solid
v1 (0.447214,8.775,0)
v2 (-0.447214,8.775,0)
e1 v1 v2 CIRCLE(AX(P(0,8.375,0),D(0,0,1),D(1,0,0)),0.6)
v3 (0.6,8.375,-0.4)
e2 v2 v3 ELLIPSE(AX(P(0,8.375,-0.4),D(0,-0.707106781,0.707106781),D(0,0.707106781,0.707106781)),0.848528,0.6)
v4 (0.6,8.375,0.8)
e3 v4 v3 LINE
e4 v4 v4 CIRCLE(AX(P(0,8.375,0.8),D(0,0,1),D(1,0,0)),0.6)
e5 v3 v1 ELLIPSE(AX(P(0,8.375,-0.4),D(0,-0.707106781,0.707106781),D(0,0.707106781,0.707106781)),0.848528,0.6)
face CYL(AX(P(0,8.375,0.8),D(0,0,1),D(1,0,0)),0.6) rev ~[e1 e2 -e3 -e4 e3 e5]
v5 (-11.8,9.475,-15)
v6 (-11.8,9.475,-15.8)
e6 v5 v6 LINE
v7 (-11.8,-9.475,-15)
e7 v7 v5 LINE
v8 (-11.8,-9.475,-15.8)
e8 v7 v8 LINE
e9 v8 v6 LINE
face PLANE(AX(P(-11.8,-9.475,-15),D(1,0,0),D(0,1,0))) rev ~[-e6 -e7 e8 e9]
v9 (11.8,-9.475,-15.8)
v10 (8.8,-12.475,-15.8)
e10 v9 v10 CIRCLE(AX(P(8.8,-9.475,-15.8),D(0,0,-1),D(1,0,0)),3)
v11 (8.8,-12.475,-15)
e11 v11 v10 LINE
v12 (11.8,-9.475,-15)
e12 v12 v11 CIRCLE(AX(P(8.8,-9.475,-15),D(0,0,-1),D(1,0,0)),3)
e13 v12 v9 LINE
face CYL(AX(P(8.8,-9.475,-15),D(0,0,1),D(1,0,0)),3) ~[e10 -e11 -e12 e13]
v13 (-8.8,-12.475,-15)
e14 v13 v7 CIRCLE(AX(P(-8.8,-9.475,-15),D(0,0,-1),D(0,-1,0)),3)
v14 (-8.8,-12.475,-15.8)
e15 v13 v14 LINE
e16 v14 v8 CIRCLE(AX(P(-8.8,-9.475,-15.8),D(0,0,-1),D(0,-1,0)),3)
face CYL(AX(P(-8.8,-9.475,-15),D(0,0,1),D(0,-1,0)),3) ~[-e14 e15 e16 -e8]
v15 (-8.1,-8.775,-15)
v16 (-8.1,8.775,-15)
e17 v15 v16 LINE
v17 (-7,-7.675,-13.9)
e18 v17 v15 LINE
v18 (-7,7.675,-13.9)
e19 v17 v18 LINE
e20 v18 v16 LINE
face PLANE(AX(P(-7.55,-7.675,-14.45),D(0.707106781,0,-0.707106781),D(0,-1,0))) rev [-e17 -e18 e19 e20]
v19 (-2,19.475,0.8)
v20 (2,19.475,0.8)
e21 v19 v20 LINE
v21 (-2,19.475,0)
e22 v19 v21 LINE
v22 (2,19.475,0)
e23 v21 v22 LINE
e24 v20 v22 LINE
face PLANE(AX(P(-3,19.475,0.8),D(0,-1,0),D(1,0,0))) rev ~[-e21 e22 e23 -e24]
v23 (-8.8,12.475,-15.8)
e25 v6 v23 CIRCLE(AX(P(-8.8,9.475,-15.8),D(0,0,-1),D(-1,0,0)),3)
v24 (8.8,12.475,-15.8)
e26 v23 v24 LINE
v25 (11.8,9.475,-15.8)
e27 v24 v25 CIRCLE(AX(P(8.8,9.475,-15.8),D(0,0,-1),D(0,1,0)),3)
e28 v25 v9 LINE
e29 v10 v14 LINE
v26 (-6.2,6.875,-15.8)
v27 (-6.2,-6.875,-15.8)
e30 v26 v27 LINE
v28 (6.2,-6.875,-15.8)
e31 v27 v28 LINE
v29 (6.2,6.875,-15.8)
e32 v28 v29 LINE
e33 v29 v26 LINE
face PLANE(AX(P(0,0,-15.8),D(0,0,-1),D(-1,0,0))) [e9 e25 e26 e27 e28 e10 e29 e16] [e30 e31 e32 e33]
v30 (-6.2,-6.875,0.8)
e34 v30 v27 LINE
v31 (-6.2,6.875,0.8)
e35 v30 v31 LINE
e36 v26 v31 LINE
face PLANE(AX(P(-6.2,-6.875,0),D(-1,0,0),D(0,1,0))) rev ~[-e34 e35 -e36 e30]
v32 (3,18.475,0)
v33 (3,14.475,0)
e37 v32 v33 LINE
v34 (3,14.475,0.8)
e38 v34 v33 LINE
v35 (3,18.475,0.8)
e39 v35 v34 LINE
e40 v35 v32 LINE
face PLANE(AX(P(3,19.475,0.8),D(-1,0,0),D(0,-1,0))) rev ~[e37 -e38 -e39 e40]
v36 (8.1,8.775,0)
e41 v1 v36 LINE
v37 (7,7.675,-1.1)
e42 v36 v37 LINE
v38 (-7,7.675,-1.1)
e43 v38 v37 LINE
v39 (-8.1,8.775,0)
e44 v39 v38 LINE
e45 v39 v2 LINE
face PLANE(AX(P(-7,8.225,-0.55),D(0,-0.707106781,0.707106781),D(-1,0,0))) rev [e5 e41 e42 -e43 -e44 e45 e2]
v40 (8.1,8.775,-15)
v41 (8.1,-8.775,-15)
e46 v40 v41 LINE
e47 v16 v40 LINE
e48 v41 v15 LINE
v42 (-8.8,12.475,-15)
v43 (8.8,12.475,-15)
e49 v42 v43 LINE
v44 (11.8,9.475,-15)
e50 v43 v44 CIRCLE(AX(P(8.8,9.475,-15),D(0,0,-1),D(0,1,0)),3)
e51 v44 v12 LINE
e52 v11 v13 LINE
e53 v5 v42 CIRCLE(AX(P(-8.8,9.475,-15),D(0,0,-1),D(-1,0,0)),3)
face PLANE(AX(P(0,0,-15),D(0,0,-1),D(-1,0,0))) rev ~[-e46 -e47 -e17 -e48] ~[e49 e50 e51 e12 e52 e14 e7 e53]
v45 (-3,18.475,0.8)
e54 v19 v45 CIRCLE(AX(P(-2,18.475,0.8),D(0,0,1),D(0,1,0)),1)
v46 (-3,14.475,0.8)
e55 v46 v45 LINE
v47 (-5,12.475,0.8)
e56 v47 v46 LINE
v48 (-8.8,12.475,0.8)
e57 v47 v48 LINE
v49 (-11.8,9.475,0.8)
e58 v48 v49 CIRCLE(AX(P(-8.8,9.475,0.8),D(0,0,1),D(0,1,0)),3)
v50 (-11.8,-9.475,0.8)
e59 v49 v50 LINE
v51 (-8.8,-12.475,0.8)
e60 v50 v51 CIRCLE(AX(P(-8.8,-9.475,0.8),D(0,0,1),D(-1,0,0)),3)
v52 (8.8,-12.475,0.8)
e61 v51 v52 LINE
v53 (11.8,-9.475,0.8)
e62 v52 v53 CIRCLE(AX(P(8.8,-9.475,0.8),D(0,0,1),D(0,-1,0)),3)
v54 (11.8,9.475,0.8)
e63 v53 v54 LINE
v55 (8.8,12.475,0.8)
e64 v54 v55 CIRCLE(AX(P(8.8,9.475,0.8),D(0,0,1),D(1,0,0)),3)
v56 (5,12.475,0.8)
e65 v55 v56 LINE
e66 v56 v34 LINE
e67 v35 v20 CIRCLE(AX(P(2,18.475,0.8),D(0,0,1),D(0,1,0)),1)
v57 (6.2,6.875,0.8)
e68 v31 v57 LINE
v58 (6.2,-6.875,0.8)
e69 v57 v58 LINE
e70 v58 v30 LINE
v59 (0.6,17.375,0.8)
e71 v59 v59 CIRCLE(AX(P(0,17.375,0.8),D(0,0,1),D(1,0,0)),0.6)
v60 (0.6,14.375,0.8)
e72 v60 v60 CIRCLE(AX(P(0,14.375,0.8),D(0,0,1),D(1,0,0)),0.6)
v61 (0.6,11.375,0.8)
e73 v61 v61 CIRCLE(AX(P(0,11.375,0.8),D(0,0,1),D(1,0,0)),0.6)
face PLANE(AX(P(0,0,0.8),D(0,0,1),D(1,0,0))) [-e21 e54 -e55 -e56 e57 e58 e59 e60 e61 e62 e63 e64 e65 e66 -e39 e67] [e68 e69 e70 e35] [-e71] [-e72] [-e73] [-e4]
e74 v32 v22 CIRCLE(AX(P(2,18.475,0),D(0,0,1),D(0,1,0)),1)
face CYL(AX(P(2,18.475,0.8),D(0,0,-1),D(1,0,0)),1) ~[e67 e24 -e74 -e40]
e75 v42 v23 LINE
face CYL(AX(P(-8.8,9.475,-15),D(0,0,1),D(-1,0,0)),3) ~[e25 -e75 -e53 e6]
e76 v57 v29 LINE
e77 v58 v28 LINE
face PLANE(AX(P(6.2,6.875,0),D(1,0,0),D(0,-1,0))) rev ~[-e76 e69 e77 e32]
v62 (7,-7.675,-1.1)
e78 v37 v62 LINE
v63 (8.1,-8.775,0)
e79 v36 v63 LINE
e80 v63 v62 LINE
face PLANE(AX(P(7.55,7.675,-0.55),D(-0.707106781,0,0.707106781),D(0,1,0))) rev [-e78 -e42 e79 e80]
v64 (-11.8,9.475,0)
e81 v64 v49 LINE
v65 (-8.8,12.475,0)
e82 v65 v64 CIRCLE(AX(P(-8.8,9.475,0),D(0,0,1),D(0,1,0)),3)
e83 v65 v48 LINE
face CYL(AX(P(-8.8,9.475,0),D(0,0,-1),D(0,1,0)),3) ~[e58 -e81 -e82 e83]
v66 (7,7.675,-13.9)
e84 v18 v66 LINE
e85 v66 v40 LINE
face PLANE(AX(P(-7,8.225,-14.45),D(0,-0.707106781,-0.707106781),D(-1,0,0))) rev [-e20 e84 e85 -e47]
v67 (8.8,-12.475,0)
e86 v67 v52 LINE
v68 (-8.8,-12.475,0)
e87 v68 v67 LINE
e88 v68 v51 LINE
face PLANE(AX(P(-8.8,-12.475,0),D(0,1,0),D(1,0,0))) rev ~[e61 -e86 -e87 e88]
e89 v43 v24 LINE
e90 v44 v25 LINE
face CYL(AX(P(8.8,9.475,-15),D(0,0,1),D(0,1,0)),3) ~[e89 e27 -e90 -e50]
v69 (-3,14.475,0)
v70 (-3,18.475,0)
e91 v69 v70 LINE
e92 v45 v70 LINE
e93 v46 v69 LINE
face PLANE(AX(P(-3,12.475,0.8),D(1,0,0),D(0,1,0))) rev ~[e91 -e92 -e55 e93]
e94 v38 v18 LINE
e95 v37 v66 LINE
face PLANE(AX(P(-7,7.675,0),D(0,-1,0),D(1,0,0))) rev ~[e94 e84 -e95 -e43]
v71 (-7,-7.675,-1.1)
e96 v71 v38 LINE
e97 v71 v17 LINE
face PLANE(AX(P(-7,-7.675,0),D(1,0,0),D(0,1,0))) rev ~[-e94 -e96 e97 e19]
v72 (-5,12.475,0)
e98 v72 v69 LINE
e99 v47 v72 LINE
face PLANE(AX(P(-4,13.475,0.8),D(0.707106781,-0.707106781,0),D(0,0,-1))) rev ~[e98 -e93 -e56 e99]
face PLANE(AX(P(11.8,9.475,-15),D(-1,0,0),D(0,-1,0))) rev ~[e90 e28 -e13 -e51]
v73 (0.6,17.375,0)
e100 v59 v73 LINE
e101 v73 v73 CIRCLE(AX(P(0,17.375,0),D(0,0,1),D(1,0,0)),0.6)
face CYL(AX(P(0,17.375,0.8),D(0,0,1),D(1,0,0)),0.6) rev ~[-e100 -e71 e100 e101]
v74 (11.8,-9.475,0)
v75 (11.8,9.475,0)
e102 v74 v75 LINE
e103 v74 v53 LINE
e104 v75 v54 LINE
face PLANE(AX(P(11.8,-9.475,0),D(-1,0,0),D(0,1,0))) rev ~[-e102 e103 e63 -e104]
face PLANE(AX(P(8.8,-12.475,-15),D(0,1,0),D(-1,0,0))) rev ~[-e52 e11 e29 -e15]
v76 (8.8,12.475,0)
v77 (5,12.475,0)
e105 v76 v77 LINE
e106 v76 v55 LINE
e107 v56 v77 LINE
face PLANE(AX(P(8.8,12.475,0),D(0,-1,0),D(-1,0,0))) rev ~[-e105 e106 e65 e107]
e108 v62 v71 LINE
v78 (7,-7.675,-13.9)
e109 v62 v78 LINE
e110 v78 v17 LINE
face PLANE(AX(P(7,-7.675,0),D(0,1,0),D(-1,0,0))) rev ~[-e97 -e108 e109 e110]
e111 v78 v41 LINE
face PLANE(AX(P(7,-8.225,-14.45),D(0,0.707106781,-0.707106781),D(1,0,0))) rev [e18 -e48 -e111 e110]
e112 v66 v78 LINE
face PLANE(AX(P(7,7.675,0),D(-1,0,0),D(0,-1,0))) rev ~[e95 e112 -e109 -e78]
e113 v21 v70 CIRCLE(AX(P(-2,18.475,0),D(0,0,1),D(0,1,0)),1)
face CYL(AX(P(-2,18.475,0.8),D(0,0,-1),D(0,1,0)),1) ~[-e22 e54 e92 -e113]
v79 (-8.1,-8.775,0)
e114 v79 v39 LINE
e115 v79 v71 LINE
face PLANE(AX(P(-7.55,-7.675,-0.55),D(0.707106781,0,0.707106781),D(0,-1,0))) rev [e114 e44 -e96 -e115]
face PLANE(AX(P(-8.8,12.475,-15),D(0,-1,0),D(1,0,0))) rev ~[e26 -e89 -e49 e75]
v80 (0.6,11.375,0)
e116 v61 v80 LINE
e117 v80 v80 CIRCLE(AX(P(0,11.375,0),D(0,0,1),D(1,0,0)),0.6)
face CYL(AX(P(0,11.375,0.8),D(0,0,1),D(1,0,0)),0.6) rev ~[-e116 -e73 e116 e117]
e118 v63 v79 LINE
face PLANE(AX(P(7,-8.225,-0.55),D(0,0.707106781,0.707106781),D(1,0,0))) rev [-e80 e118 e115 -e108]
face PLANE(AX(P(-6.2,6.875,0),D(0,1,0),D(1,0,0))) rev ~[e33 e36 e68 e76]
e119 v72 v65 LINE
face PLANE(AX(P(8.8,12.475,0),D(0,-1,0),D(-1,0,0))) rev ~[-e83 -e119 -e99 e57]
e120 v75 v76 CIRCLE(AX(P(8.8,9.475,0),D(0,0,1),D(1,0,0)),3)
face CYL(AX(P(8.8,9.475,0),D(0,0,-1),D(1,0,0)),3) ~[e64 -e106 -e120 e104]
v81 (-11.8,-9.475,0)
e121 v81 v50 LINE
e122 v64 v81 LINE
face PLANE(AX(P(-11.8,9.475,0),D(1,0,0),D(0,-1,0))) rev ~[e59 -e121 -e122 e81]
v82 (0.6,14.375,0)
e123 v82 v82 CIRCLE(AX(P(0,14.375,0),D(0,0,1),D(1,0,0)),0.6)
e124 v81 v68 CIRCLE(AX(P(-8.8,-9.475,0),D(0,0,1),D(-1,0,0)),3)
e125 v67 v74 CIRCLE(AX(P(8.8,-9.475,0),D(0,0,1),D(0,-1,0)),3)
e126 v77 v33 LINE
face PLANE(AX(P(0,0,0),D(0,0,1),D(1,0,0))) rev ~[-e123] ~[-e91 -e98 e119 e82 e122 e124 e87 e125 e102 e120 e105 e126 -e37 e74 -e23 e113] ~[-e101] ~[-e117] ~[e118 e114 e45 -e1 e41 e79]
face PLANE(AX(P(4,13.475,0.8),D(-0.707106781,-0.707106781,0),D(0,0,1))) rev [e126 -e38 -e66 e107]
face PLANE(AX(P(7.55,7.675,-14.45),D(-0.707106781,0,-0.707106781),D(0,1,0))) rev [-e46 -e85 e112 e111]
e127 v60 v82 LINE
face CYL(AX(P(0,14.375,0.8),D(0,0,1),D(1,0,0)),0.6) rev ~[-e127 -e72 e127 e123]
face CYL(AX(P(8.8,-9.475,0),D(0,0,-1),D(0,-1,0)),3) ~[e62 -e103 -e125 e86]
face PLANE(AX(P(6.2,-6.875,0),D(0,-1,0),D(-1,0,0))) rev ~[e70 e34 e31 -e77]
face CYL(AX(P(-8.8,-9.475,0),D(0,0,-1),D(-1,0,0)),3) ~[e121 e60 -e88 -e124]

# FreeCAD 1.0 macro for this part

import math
import FreeCAD as App
import Part
import Sketcher
from FreeCAD import Vector
Q = App.Units.Quantity


def edges_at(feature, points):
    """Names of the edges that pass closest to the given points."""
    edges = feature.Shape.Edges
    near = lambda p: min(range(len(edges)), key=lambda i: edges[i].distToShape(Part.Vertex(*p))[0])
    return sorted({f"Edge{near(p) + 1}" for p in points})


def add_polygon(sketch, points):
    """Adds a closed chain of lines whose ends are joined by coincident constraints."""
    first, n = sketch.GeometryCount, len(points)
    for a, b in zip(points, points[1:] + points[:1]):
        sketch.addGeometry(Part.LineSegment(App.Vector(*a, 0), App.Vector(*b, 0)), False)
    for i in range(n):
        sketch.addConstraint(Sketcher.Constraint("Coincident", first + i, 2, first + (i + 1) % n, 1))

doc = App.newDocument("Part")
body = doc.addObject("PartDesign::Body", "Body")

sketch1 = body.newObject("Sketcher::SketchObject", "Sketch")
sketch1.AttachmentSupport = (doc.getObject("XY_Plane"), [""])
sketch1.MapMode = "FlatFace"
sketch1.addGeometry(Part.ArcOfCircle(Part.Circle(Vector(8.8, 9.5, 0), Vector(0, 0, 1), 3), math.radians(0), math.radians(90)), False)
sketch1.addGeometry(Part.LineSegment(Vector(8.8, 12.5, 0), Vector(-8.8, 12.5, 0)), False)
sketch1.addGeometry(Part.ArcOfCircle(Part.Circle(Vector(-8.8, 9.5, 0), Vector(0, 0, 1), 3), math.radians(90), math.radians(180)), False)
sketch1.addGeometry(Part.LineSegment(Vector(-11.8, 9.5, 0), Vector(-11.8, -9.5, 0)), False)
sketch1.addGeometry(Part.ArcOfCircle(Part.Circle(Vector(-8.8, -9.5, 0), Vector(0, 0, 1), 3), math.radians(180), math.radians(270)), False)
sketch1.addGeometry(Part.LineSegment(Vector(-8.8, -12.5, 0), Vector(8.8, -12.5, 0)), False)
sketch1.addGeometry(Part.ArcOfCircle(Part.Circle(Vector(8.8, -9.5, 0), Vector(0, 0, 1), 3), math.radians(-90), math.radians(0)), False)
sketch1.addGeometry(Part.LineSegment(Vector(11.8, -9.5, 0), Vector(11.8, 9.5, 0)), False)
add_polygon(sketch1, [(-6.2, -6.9), (-6.2, 6.9), (6.2, 6.9), (6.2, -6.9)])
sketch1.addConstraint([
    Sketcher.Constraint("Tangent", 0, 2, 1, 1),
    Sketcher.Constraint("Tangent", 1, 2, 2, 1),
    Sketcher.Constraint("Tangent", 2, 2, 3, 1),
    Sketcher.Constraint("Tangent", 3, 2, 4, 1),
    Sketcher.Constraint("Tangent", 4, 2, 5, 1),
    Sketcher.Constraint("Tangent", 5, 2, 6, 1),
    Sketcher.Constraint("Tangent", 6, 2, 7, 1),
    Sketcher.Constraint("Tangent", 7, 2, 0, 1),
    Sketcher.Constraint("Horizontal", 1),
    Sketcher.Constraint("Vertical", 3),
    Sketcher.Constraint("Horizontal", 5),
    Sketcher.Constraint("Vertical", 7),
    Sketcher.Constraint("Vertical", 8),
    Sketcher.Constraint("Horizontal", 9),
    Sketcher.Constraint("Vertical", 10),
    Sketcher.Constraint("Horizontal", 11),
    Sketcher.Constraint("Equal", 0, 2),
    Sketcher.Constraint("Equal", 2, 4),
    Sketcher.Constraint("Equal", 4, 6),
    Sketcher.Constraint("Symmetric", 0, 3, 4, 3, -1, 1),
    Sketcher.Constraint("Symmetric", 8, 2, 10, 2, -1, 1),
    Sketcher.Constraint("Radius", 0, Q("3 mm")),
    Sketcher.Constraint("DistanceX", 9, 1, 9, 2, Q("12.4 mm")),
    Sketcher.Constraint("DistanceY", 8, 1, 8, 2, Q("13.75 mm")),
    Sketcher.Constraint("DistanceY", 8, 2, 1, 2, Q("5.6 mm")),
    Sketcher.Constraint("DistanceX", 2, 2, 8, 2, Q("5.6 mm")),
])
pad1 = body.newObject("PartDesign::Pad", "Pad")
pad1.Profile = sketch1
pad1.Length = 0.8

sketch2 = body.newObject("Sketcher::SketchObject", "Sketch001")
sketch2.AttachmentSupport = (doc.getObject("XY_Plane"), [""])
sketch2.MapMode = "FlatFace"
add_polygon(sketch2, [(7, -8), (-7, -8), (-7, 8), (7, 8)])
add_polygon(sketch2, [(-6, -7), (6, -7), (6, 7), (-6, 7)])
sketch2.addConstraint([
    Sketcher.Constraint("Horizontal", 0),
    Sketcher.Constraint("Vertical", 1),
    Sketcher.Constraint("Horizontal", 2),
    Sketcher.Constraint("Vertical", 3),
    Sketcher.Constraint("Horizontal", 4),
    Sketcher.Constraint("Vertical", 5),
    Sketcher.Constraint("Horizontal", 6),
    Sketcher.Constraint("Vertical", 7),
    Sketcher.Constraint("Symmetric", 0, 2, 2, 2, -1, 1),
    Sketcher.Constraint("Symmetric", 4, 2, 6, 2, -1, 1),
    Sketcher.Constraint("DistanceX", 4, 2, 3, 2, Q("0.8 mm")),
    Sketcher.Constraint("DistanceY", 3, 2, 4, 2, Q("0.8 mm")),
    Sketcher.Constraint("DistanceX", 0, 2, 0, 1, Q("14 mm")),
    Sketcher.Constraint("DistanceY", 1, 1, 1, 2, Q("15.35 mm")),
])
pad2 = body.newObject("PartDesign::Pad", "Pad001")
pad2.Profile = sketch2
pad2.Length = 15
pad2.Reversed = True

sketch3 = body.newObject("Sketcher::SketchObject", "Sketch002")
sketch3.AttachmentSupport = (doc.getObject("XY_Plane"), [""])
sketch3.MapMode = "FlatFace"
sketch3.AttachmentOffset = App.Placement(Vector(0, 0, -15), App.Rotation())
sketch3.addGeometry(Part.ArcOfCircle(Part.Circle(Vector(-8.8, 9.5, 0), Vector(0, 0, 1), 3), math.radians(90), math.radians(180)), False)
sketch3.addGeometry(Part.LineSegment(Vector(-8.8, 12.5, 0), Vector(8.8, 12.5, 0)), False)
sketch3.addGeometry(Part.ArcOfCircle(Part.Circle(Vector(8.8, 9.5, 0), Vector(0, 0, 1), 3), math.radians(0), math.radians(90)), False)
sketch3.addGeometry(Part.LineSegment(Vector(11.8, 9.5, 0), Vector(11.8, -9.5, 0)), False)
sketch3.addGeometry(Part.ArcOfCircle(Part.Circle(Vector(8.8, -9.5, 0), Vector(0, 0, 1), 3), math.radians(-90), math.radians(0)), False)
sketch3.addGeometry(Part.LineSegment(Vector(8.8, -12.5, 0), Vector(-8.8, -12.5, 0)), False)
sketch3.addGeometry(Part.ArcOfCircle(Part.Circle(Vector(-8.8, -9.5, 0), Vector(0, 0, 1), 3), math.radians(180), math.radians(270)), False)
sketch3.addGeometry(Part.LineSegment(Vector(-11.8, -9.5, 0), Vector(-11.8, 9.5, 0)), False)
add_polygon(sketch3, [(6.2, -6.9), (6.2, 6.9), (-6.2, 6.9), (-6.2, -6.9)])
sketch3.addConstraint([
    Sketcher.Constraint("Tangent", 0, 1, 1, 1),
    Sketcher.Constraint("Tangent", 1, 2, 2, 2),
    Sketcher.Constraint("Tangent", 2, 1, 3, 1),
    Sketcher.Constraint("Tangent", 3, 2, 4, 2),
    Sketcher.Constraint("Tangent", 4, 1, 5, 1),
    Sketcher.Constraint("Tangent", 5, 2, 6, 2),
    Sketcher.Constraint("Tangent", 6, 1, 7, 1),
    Sketcher.Constraint("Tangent", 7, 2, 0, 2),
    Sketcher.Constraint("Horizontal", 1),
    Sketcher.Constraint("Vertical", 3),
    Sketcher.Constraint("Horizontal", 5),
    Sketcher.Constraint("Vertical", 7),
    Sketcher.Constraint("Vertical", 8),
    Sketcher.Constraint("Horizontal", 9),
    Sketcher.Constraint("Vertical", 10),
    Sketcher.Constraint("Horizontal", 11),
    Sketcher.Constraint("Equal", 0, 2),
    Sketcher.Constraint("Equal", 2, 4),
    Sketcher.Constraint("Equal", 4, 6),
    Sketcher.Constraint("Symmetric", 0, 3, 4, 3, -1, 1),
    Sketcher.Constraint("Symmetric", 8, 2, 10, 2, -1, 1),
    Sketcher.Constraint("Radius", 0, Q("3 mm")),
    Sketcher.Constraint("DistanceX", 1, 1, 1, 2, Q("17.6 mm")),
    Sketcher.Constraint("DistanceX", 9, 2, 9, 1, Q("12.4 mm")),
    Sketcher.Constraint("DistanceY", 3, 2, 3, 1, Q("18.95 mm")),
    Sketcher.Constraint("DistanceY", 8, 1, 8, 2, Q("13.75 mm")),
])
pad3 = body.newObject("PartDesign::Pad", "Pad002")
pad3.Profile = sketch3
pad3.Length = 0.8
pad3.Reversed = True
doc.recompute()

chamfer = body.newObject("PartDesign::Chamfer", "Chamfer")
chamfer.Base = (pad3, edges_at(pad3, [
    (7, 0, 0),
    (0, -7.675, 0),
    (0, 7.675, 0),
    (-7, 0, 0),
    (-7, 0, -15),
    (0, 7.675, -15),
    (0, -7.675, -15),
    (7, 0, -15),
]))
chamfer.Size = 1.1

sketch4 = body.newObject("Sketcher::SketchObject", "Sketch003")
sketch4.AttachmentSupport = (doc.getObject("XY_Plane"), [""])
sketch4.MapMode = "FlatFace"
sketch4.AttachmentOffset = App.Placement(Vector(0, 0, 0.8), App.Rotation())
add_polygon(sketch4, [(-3, 12.5), (3, 12.5), (3, 19.5), (-3, 19.5)])
sketch4.addGeometry(Part.Circle(Vector(0, 14.4, 0), Vector(0, 0, 1), 0.6), False)
sketch4.addGeometry(Part.Circle(Vector(0, 17.4, 0), Vector(0, 0, 1), 0.6), False)
sketch4.addConstraint([
    Sketcher.Constraint("Horizontal", 0),
    Sketcher.Constraint("Vertical", 1),
    Sketcher.Constraint("Horizontal", 2),
    Sketcher.Constraint("Vertical", 3),
    Sketcher.Constraint("Equal", 4, 5),
    Sketcher.Constraint("PointOnObject", 4, 3, -2),
    Sketcher.Constraint("PointOnObject", 5, 3, -2),
    Sketcher.Constraint("Diameter", 4, Q("1.2 mm")),
    Sketcher.Constraint("DistanceX", 0, 1, 0, 2, Q("6 mm")),
    Sketcher.Constraint("DistanceY", 1, 1, 1, 2, Q("7 mm")),
    Sketcher.Constraint("DistanceX", -1, 1, 0, 2, Q("3 mm")),
    Sketcher.Constraint("DistanceY", 4, 3, 5, 3, Q("3 mm")),
    Sketcher.Constraint("DistanceY", 0, 2, 4, 3, Q("1.9 mm")),
    Sketcher.Constraint("DistanceY", -1, 1, 4, 3, Q("14.375 mm")),
])
pad4 = body.newObject("PartDesign::Pad", "Pad003")
pad4.Profile = sketch4
pad4.Length = 0.8
pad4.Reversed = True
doc.recompute()

chamfer2 = body.newObject("PartDesign::Chamfer", "Chamfer001")
chamfer2.Base = (pad4, edges_at(pad4, [(-3, 12.475, 0.4), (3, 12.475, 0.4)]))
chamfer2.Size = 2

sketch5 = body.newObject("Sketcher::SketchObject", "Sketch004")
sketch5.AttachmentSupport = (doc.getObject("XY_Plane"), [""])
sketch5.MapMode = "FlatFace"
sketch5.AttachmentOffset = App.Placement(Vector(0, 0, 0.8), App.Rotation())
sketch5.addGeometry([
    Part.Circle(Vector(0, 8.4, 0), Vector(0, 0, 1), 0.6),
    Part.Circle(Vector(0, 11.4, 0), Vector(0, 0, 1), 0.6),
], False)
sketch5.addConstraint([
    Sketcher.Constraint("Equal", 0, 1),
    Sketcher.Constraint("PointOnObject", 0, 3, -2),
    Sketcher.Constraint("PointOnObject", 1, 3, -2),
    Sketcher.Constraint("Diameter", 0, Q("1.2 mm")),
    Sketcher.Constraint("DistanceY", 0, 3, 1, 3, Q("3 mm")),
    Sketcher.Constraint("DistanceY", -1, 1, 0, 3, Q("8.375 mm")),
])
pocket1 = body.newObject("PartDesign::Pocket", "Pocket")
pocket1.Profile = sketch5
pocket1.Length = 10
doc.recompute()

fillet = body.newObject("PartDesign::Fillet", "Fillet")
fillet.Base = (pocket1, edges_at(pocket1, [(-3, 19.475, 0.4), (3, 19.475, 0.4)]))
fillet.Radius = 1

doc.recompute()
